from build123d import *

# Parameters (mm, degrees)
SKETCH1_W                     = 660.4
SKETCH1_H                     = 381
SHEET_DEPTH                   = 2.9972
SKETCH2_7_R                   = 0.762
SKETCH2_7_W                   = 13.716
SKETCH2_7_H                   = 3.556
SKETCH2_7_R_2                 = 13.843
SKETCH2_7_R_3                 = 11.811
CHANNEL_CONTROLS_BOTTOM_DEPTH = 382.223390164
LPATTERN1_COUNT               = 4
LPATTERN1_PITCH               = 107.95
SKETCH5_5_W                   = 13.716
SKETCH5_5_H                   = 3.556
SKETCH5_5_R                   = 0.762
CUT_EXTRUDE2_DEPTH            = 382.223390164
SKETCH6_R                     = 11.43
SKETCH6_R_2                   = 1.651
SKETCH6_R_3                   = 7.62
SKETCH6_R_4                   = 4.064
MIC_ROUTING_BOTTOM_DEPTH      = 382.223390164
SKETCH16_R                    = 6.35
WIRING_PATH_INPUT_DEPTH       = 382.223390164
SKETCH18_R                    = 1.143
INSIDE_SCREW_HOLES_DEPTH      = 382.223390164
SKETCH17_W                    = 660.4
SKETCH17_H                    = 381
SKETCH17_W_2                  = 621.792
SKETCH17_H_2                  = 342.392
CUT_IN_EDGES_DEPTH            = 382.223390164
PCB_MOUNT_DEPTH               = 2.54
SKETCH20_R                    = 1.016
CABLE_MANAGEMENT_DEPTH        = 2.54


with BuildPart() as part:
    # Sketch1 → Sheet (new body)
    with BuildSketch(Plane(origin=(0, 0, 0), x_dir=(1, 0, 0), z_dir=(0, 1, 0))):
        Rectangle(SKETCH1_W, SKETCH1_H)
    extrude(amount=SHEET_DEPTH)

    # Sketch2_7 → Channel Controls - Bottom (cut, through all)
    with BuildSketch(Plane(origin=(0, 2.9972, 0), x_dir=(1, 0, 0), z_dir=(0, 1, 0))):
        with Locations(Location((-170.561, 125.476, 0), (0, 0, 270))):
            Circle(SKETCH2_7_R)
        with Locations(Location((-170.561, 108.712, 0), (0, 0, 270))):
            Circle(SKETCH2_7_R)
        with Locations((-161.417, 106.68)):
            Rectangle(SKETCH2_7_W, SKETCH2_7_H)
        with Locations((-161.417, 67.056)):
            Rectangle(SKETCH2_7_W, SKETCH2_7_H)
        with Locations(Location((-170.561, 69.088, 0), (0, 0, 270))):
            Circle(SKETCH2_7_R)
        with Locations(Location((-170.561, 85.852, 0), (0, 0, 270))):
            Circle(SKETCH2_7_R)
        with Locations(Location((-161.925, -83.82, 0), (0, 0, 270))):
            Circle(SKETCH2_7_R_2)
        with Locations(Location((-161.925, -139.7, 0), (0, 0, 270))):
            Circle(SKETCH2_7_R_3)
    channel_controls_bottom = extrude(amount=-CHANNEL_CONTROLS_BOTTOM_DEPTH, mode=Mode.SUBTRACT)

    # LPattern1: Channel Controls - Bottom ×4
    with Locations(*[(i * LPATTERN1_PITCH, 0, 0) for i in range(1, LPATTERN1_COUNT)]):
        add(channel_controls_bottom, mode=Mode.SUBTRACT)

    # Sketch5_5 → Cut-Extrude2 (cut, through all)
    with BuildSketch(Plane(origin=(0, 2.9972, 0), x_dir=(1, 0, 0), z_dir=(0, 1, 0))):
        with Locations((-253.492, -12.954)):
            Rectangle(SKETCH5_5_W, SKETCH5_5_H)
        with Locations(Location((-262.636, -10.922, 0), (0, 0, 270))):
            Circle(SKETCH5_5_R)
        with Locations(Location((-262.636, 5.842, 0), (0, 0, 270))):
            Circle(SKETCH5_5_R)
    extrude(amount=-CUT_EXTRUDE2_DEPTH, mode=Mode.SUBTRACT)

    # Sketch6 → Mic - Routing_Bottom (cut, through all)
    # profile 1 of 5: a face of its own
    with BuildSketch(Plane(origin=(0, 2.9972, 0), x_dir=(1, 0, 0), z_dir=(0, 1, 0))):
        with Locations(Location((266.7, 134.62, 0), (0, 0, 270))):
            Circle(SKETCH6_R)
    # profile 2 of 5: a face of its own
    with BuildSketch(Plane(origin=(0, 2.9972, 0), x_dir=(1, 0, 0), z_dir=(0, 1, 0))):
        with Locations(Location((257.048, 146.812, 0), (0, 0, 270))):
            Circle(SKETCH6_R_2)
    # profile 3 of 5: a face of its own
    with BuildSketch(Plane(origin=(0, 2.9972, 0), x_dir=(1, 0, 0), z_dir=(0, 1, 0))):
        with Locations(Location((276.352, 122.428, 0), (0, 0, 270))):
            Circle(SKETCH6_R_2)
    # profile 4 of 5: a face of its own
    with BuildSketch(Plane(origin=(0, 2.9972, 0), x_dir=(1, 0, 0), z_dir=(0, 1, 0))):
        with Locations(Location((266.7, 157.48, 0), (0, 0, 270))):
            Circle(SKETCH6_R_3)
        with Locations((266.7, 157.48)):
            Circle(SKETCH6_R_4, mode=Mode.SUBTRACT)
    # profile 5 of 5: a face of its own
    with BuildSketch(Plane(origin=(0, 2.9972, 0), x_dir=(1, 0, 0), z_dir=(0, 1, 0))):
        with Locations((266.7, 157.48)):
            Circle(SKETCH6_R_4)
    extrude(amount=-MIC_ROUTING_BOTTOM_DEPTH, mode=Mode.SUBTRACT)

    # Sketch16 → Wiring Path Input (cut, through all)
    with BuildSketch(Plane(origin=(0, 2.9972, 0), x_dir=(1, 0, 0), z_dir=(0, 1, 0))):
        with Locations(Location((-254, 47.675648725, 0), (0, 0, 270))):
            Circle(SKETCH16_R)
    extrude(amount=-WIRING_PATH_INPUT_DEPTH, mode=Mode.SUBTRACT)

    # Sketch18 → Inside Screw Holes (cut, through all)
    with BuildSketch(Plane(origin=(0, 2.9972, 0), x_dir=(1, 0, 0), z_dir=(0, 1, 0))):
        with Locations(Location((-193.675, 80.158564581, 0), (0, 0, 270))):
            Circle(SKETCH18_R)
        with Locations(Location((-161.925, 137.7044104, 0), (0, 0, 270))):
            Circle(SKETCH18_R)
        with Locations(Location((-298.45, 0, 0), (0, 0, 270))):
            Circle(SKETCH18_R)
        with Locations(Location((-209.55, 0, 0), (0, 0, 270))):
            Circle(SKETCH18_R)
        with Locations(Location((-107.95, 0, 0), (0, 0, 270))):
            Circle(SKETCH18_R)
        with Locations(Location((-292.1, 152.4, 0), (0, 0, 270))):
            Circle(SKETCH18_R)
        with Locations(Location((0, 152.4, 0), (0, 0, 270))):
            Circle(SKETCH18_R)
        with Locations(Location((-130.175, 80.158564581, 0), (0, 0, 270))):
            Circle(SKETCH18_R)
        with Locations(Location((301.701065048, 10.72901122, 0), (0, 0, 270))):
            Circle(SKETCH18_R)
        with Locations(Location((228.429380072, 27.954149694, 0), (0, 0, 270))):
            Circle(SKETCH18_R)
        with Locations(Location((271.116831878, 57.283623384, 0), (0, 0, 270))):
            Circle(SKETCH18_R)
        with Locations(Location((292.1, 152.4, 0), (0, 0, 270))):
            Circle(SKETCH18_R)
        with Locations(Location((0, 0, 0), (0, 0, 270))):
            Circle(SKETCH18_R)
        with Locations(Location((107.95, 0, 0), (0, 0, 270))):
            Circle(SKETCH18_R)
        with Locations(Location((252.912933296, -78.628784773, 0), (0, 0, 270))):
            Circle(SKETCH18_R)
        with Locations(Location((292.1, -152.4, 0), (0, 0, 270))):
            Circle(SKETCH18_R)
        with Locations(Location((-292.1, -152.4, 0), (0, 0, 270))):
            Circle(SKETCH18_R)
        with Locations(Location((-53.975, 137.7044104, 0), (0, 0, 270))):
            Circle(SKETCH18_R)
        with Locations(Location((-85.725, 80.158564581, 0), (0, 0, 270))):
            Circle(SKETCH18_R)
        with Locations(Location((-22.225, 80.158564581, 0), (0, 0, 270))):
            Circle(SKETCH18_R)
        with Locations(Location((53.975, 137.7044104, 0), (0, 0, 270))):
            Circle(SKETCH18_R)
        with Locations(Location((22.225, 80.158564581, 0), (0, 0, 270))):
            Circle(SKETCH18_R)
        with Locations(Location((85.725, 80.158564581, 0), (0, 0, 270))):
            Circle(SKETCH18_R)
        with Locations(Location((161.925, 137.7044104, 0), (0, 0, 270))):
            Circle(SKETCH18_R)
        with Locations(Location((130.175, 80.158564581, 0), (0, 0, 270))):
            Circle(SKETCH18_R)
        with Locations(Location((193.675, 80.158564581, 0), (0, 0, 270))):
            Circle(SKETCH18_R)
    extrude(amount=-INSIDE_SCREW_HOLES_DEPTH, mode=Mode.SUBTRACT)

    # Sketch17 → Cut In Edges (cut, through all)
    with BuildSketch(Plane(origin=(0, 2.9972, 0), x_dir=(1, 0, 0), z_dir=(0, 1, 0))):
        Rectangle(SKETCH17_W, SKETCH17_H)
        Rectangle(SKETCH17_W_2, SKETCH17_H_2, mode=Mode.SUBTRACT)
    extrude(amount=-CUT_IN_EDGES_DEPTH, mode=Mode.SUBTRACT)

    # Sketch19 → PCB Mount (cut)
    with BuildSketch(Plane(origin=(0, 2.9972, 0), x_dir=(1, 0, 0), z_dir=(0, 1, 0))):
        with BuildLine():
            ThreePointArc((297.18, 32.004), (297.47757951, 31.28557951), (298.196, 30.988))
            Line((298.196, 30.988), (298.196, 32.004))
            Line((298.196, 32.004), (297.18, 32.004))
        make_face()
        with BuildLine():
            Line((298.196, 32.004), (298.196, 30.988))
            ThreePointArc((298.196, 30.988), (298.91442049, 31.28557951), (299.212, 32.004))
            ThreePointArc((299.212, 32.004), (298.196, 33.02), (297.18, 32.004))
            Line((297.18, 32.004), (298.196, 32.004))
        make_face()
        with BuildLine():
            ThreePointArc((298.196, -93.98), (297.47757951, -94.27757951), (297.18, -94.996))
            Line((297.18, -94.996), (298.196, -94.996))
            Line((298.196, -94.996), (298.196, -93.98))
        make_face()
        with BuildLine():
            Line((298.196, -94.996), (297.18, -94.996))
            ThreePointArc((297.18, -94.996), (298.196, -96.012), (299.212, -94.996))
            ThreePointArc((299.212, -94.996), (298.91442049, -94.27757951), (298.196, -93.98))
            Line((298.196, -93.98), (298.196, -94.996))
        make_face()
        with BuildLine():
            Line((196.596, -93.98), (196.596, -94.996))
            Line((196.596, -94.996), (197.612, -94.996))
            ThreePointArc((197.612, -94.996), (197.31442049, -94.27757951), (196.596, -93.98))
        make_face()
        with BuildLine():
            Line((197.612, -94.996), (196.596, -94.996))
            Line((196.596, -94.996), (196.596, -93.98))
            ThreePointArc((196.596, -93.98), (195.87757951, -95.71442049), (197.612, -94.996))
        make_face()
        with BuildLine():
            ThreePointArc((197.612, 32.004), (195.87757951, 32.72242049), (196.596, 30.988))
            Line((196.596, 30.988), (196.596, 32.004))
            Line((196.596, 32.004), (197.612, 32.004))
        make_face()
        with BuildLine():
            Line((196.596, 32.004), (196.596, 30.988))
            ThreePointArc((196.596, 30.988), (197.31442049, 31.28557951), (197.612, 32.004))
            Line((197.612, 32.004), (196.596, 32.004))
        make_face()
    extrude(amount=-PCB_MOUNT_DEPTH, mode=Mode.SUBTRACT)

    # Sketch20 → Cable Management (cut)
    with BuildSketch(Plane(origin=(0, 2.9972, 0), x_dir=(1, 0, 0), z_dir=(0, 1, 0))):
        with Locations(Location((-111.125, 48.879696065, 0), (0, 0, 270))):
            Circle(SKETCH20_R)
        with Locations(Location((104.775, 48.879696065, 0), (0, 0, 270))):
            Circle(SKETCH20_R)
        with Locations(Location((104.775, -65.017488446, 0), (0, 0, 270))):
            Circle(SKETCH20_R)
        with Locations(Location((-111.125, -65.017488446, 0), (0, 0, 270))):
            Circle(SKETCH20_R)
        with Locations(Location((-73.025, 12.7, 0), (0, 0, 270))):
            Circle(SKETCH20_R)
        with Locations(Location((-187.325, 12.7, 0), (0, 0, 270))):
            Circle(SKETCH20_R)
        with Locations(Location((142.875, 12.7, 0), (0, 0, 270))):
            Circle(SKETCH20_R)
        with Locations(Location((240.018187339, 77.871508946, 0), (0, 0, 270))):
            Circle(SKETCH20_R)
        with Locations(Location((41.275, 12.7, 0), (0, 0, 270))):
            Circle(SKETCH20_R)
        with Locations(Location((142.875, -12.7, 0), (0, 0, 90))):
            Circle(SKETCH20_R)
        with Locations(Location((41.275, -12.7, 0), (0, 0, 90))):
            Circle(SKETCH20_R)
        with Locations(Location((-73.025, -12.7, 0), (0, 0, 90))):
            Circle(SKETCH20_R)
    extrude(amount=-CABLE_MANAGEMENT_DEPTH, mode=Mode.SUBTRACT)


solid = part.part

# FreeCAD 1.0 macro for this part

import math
import FreeCAD as App
import Part
import Sketcher
from FreeCAD import Vector
Q = App.Units.Quantity

doc = App.newDocument("Part")
body = doc.addObject("PartDesign::Body", "Body")

# Sketch on XZ plane
sketch1 = body.newObject("Sketcher::SketchObject", "Sketch")
sketch1.AttachmentSupport = (doc.getObject("XZ_Plane"), [""])
sketch1.MapMode = "FlatFace"
sketch1.addGeometry(Part.LineSegment(Vector(-330.2, -190.5, 0), Vector(-330.2, 190.5, 0)), False)
sketch1.addGeometry(Part.LineSegment(Vector(-330.2, 190.5, 0), Vector(330.2, 190.5, 0)), False)
sketch1.addGeometry(Part.LineSegment(Vector(330.2, 190.5, 0), Vector(330.2, -190.5, 0)), False)
sketch1.addGeometry(Part.LineSegment(Vector(330.2, -190.5, 0), Vector(-330.2, -190.5, 0)), False)
sketch1.addConstraint(Sketcher.Constraint("Coincident", 0, 2, 1, 1))
sketch1.addConstraint(Sketcher.Constraint("Coincident", 1, 2, 2, 1))
sketch1.addConstraint(Sketcher.Constraint("Coincident", 2, 2, 3, 1))
sketch1.addConstraint(Sketcher.Constraint("Coincident", 3, 2, 0, 1))
sketch1.addConstraint(Sketcher.Constraint("Vertical", 0))
sketch1.addConstraint(Sketcher.Constraint("Horizontal", 1))
sketch1.addConstraint(Sketcher.Constraint("Vertical", 2))
sketch1.addConstraint(Sketcher.Constraint("Horizontal", 3))
sketch1.addConstraint(Sketcher.Constraint("Symmetric", 0, 2, 2, 2, -1, 1))
sketch1.addConstraint(Sketcher.Constraint("DistanceX", 1, 1, 1, 2, Q("26 in")))
sketch1.addConstraint(Sketcher.Constraint("DistanceY", 0, 1, 0, 2, Q("15 in")))
pad1 = body.newObject("PartDesign::Pad", "Pad")
pad1.Profile = sketch1
pad1.Length = Q("0.118 in")
pad1.Reversed = True

# Sketch on XZ plane
sketch2 = body.newObject("Sketcher::SketchObject", "Sketch001")
sketch2.AttachmentSupport = (doc.getObject("XZ_Plane"), [""])
sketch2.MapMode = "FlatFace"
sketch2.AttachmentOffset = App.Placement(Vector(0, 0, -0.118 * 25.4), App.Rotation())
sketch2.addGeometry(Part.Circle(Vector(-170.561, -125.476, 0), Vector(0, 0, 1), 0.762), False)
sketch2.addGeometry(Part.Circle(Vector(-170.561, -108.712, 0), Vector(0, 0, 1), 0.762), False)
sketch2.addGeometry(Part.LineSegment(Vector(-168.275, -108.458, 0), Vector(-168.275, -104.902, 0)), False)
sketch2.addGeometry(Part.LineSegment(Vector(-168.275, -104.902, 0), Vector(-154.559, -104.902, 0)), False)
sketch2.addGeometry(Part.LineSegment(Vector(-154.559, -104.902, 0), Vector(-154.559, -108.458, 0)), False)
sketch2.addGeometry(Part.LineSegment(Vector(-154.559, -108.458, 0), Vector(-168.275, -108.458, 0)), False)
sketch2.addGeometry(Part.LineSegment(Vector(-168.275, -68.834, 0), Vector(-168.275, -65.278, 0)), False)
sketch2.addGeometry(Part.LineSegment(Vector(-168.275, -65.278, 0), Vector(-154.559, -65.278, 0)), False)
sketch2.addGeometry(Part.LineSegment(Vector(-154.559, -65.278, 0), Vector(-154.559, -68.834, 0)), False)
sketch2.addGeometry(Part.LineSegment(Vector(-154.559, -68.834, 0), Vector(-168.275, -68.834, 0)), False)
sketch2.addGeometry(Part.Circle(Vector(-170.561, -69.088, 0), Vector(0, 0, 1), 0.762), False)
sketch2.addGeometry(Part.Circle(Vector(-170.561, -85.852, 0), Vector(0, 0, 1), 0.762), False)
sketch2.addGeometry(Part.Circle(Vector(-161.925, 83.82, 0), Vector(0, 0, 1), 13.843), False)
sketch2.addGeometry(Part.Circle(Vector(-161.925, 139.7, 0), Vector(0, 0, 1), 11.811), False)
sketch2.addConstraint(Sketcher.Constraint("Coincident", 2, 2, 3, 1))
sketch2.addConstraint(Sketcher.Constraint("Coincident", 3, 2, 4, 1))
sketch2.addConstraint(Sketcher.Constraint("Coincident", 4, 2, 5, 1))
sketch2.addConstraint(Sketcher.Constraint("Coincident", 5, 2, 2, 1))
sketch2.addConstraint(Sketcher.Constraint("Coincident", 6, 2, 7, 1))
sketch2.addConstraint(Sketcher.Constraint("Coincident", 7, 2, 8, 1))
sketch2.addConstraint(Sketcher.Constraint("Coincident", 8, 2, 9, 1))
sketch2.addConstraint(Sketcher.Constraint("Coincident", 9, 2, 6, 1))
sketch2.addConstraint(Sketcher.Constraint("Vertical", 2))
sketch2.addConstraint(Sketcher.Constraint("Horizontal", 3))
sketch2.addConstraint(Sketcher.Constraint("Vertical", 4))
sketch2.addConstraint(Sketcher.Constraint("Horizontal", 5))
sketch2.addConstraint(Sketcher.Constraint("Vertical", 6))
sketch2.addConstraint(Sketcher.Constraint("Horizontal", 7))
sketch2.addConstraint(Sketcher.Constraint("Vertical", 8))
sketch2.addConstraint(Sketcher.Constraint("Horizontal", 9))
sketch2.addConstraint(Sketcher.Constraint("Equal", 0, 1))
sketch2.addConstraint(Sketcher.Constraint("Equal", 1, 10))
sketch2.addConstraint(Sketcher.Constraint("Equal", 10, 11))
sketch2.addConstraint(Sketcher.Constraint("Vertical", 0, 3, 1, 3))
sketch2.addConstraint(Sketcher.Constraint("Vertical", 1, 3, 10, 3))
sketch2.addConstraint(Sketcher.Constraint("Vertical", 10, 3, 11, 3))
sketch2.addConstraint(Sketcher.Constraint("Vertical", 12, 3, 13, 3))
sketch2.addConstraint(Sketcher.Constraint("Vertical", 5, 2, 6, 2))
sketch2.addConstraint(Sketcher.Constraint("Vertical", 4, 2, 7, 2))
sketch2.addConstraint(Sketcher.Constraint("Equal", 4, 6))
sketch2.addConstraint(Sketcher.Constraint("Diameter", 0, Q("0.06 in")))
sketch2.addConstraint(Sketcher.Constraint("Diameter", 12, Q("1.09 in")))
sketch2.addConstraint(Sketcher.Constraint("Diameter", 13, Q("0.93 in")))
sketch2.addConstraint(Sketcher.Constraint("DistanceX", 3, 1, 3, 2, Q("0.54 in")))
sketch2.addConstraint(Sketcher.Constraint("DistanceY", 2, 1, 2, 2, Q("0.14 in")))
sketch2.addConstraint(Sketcher.Constraint("DistanceY", -1, 1, 12, 3, Q("3.3 in")))
sketch2.addConstraint(Sketcher.Constraint("DistanceY", -1, 1, 13, 3, Q("5.5 in")))
sketch2.addConstraint(Sketcher.Constraint("DistanceY", 1, 3, 11, 3, Q("0.9 in")))
sketch2.addConstraint(Sketcher.Constraint("DistanceY", 5, 2, 6, 2, Q("1.7 in")))
sketch2.addConstraint(Sketcher.Constraint("DistanceY", 0, 3, -1, 1, Q("4.94 in")))
sketch2.addConstraint(Sketcher.Constraint("DistanceY", 1, 3, -1, 1, Q("4.28 in")))
sketch2.addConstraint(Sketcher.Constraint("DistanceY", 10, 3, -1, 1, Q("2.72 in")))
sketch2.addConstraint(Sketcher.Constraint("DistanceY", 2, 2, -1, 1, Q("4.13 in")))
sketch2.addConstraint(Sketcher.Constraint("DistanceX", 10, 3, 12, 3, Q("0.34 in")))
sketch2.addConstraint(Sketcher.Constraint("DistanceX", 1, 3, 2, 2, Q("0.09 in")))
sketch2.addConstraint(Sketcher.Constraint("DistanceX", 0, 3, -1, 1, Q("6.715 in")))
pocket1 = body.newObject("PartDesign::Pocket", "Pocket")
pocket1.Profile = sketch2
pocket1.Type = "ThroughAll"
pocket1.Reversed = True
doc.recompute()

linearpattern = body.newObject("PartDesign::LinearPattern", "LinearPattern")
linearpattern.Originals = [pocket1]
linearpattern.Direction = (doc.getObject("X_Axis"), [""])
linearpattern.Mode = "offset"
linearpattern.Offset = Q("4.25 in")
linearpattern.Occurrences = 4
body.Tip = linearpattern

# Sketch on XZ plane
sketch3 = body.newObject("Sketcher::SketchObject", "Sketch002")
sketch3.AttachmentSupport = (doc.getObject("XZ_Plane"), [""])
sketch3.MapMode = "FlatFace"
sketch3.AttachmentOffset = App.Placement(Vector(0, 0, -0.118 * 25.4), App.Rotation())
sketch3.addGeometry(Part.LineSegment(Vector(-260.35, 11.176, 0), Vector(-260.35, 14.732, 0)), False)
sketch3.addGeometry(Part.LineSegment(Vector(-260.35, 14.732, 0), Vector(-246.634, 14.732, 0)), False)
sketch3.addGeometry(Part.LineSegment(Vector(-246.634, 14.732, 0), Vector(-246.634, 11.176, 0)), False)
sketch3.addGeometry(Part.LineSegment(Vector(-246.634, 11.176, 0), Vector(-260.35, 11.176, 0)), False)
sketch3.addGeometry(Part.Circle(Vector(-262.636, 10.922, 0), Vector(0, 0, 1), 0.762), False)
sketch3.addGeometry(Part.Circle(Vector(-262.636, -5.842, 0), Vector(0, 0, 1), 0.762), False)
sketch3.addConstraint(Sketcher.Constraint("Coincident", 0, 2, 1, 1))
sketch3.addConstraint(Sketcher.Constraint("Coincident", 1, 2, 2, 1))
sketch3.addConstraint(Sketcher.Constraint("Coincident", 2, 2, 3, 1))
sketch3.addConstraint(Sketcher.Constraint("Coincident", 3, 2, 0, 1))
sketch3.addConstraint(Sketcher.Constraint("Vertical", 0))
sketch3.addConstraint(Sketcher.Constraint("Horizontal", 1))
sketch3.addConstraint(Sketcher.Constraint("Vertical", 2))
sketch3.addConstraint(Sketcher.Constraint("Horizontal", 3))
sketch3.addConstraint(Sketcher.Constraint("Equal", 4, 5))
sketch3.addConstraint(Sketcher.Constraint("Vertical", 4, 3, 5, 3))
sketch3.addConstraint(Sketcher.Constraint("Diameter", 4, Q("0.06 in")))
sketch3.addConstraint(Sketcher.Constraint("DistanceX", 1, 1, 1, 2, Q("0.54 in")))
sketch3.addConstraint(Sketcher.Constraint("DistanceY", 0, 1, 0, 2, Q("0.14 in")))
sketch3.addConstraint(Sketcher.Constraint("DistanceX", 4, 3, -1, 1, Q("10.34 in")))
sketch3.addConstraint(Sketcher.Constraint("DistanceY", -1, 1, 4, 3, Q("0.43 in")))
sketch3.addConstraint(Sketcher.Constraint("DistanceY", 5, 3, -1, 1, Q("0.23 in")))
sketch3.addConstraint(Sketcher.Constraint("DistanceX", 0, 2, -1, 1, Q("10.25 in")))
sketch3.addConstraint(Sketcher.Constraint("DistanceY", -1, 1, 0, 2, Q("0.58 in")))
pocket2 = body.newObject("PartDesign::Pocket", "Pocket001")
pocket2.Profile = sketch3
pocket2.Type = "ThroughAll"
pocket2.Reversed = True

# Sketch on XZ plane
sketch4 = body.newObject("Sketcher::SketchObject", "Sketch003")
sketch4.AttachmentSupport = (doc.getObject("XZ_Plane"), [""])
sketch4.MapMode = "FlatFace"
sketch4.AttachmentOffset = App.Placement(Vector(0, 0, -0.118 * 25.4), App.Rotation())
sketch4.addGeometry(Part.Circle(Vector(266.7, -134.62, 0), Vector(0, 0, 1), 11.43), False)
sketch4.addGeometry(Part.Circle(Vector(257.048, -146.812, 0), Vector(0, 0, 1), 1.651), False)
sketch4.addGeometry(Part.Circle(Vector(276.352, -122.428, 0), Vector(0, 0, 1), 1.651), False)
sketch4.addGeometry(Part.Circle(Vector(266.7, -157.48, 0), Vector(0, 0, 1), 7.62), False)
sketch4.addConstraint(Sketcher.Constraint("Equal", 1, 2))
sketch4.addConstraint(Sketcher.Constraint("Vertical", 0, 3, 3, 3))
sketch4.addConstraint(Sketcher.Constraint("Diameter", 0, Q("0.9 in")))
sketch4.addConstraint(Sketcher.Constraint("Diameter", 3, Q("0.6 in")))
sketch4.addConstraint(Sketcher.Constraint("Diameter", 1, Q("0.13 in")))
sketch4.addConstraint(Sketcher.Constraint("DistanceX", -1, 1, 0, 3, Q("10.5 in")))
sketch4.addConstraint(Sketcher.Constraint("DistanceY", 0, 3, -1, 1, Q("5.3 in")))
sketch4.addConstraint(Sketcher.Constraint("DistanceY", 3, 3, -1, 1, Q("6.2 in")))
sketch4.addConstraint(Sketcher.Constraint("DistanceX", -1, 1, 1, 3, Q("10.12 in")))
sketch4.addConstraint(Sketcher.Constraint("DistanceY", 1, 3, -1, 1, Q("5.78 in")))
sketch4.addConstraint(Sketcher.Constraint("DistanceX", -1, 1, 2, 3, Q("10.88 in")))
sketch4.addConstraint(Sketcher.Constraint("DistanceY", 2, 3, -1, 1, Q("4.82 in")))
pocket3 = body.newObject("PartDesign::Pocket", "Pocket002")
pocket3.Profile = sketch4
pocket3.Length = 382.22339
pocket3.Reversed = True

# Sketch on XZ plane
sketch5 = body.newObject("Sketcher::SketchObject", "Sketch004")
sketch5.AttachmentSupport = (doc.getObject("XZ_Plane"), [""])
sketch5.MapMode = "FlatFace"
sketch5.AttachmentOffset = App.Placement(Vector(0, 0, -0.118 * 25.4), App.Rotation())
sketch5.addGeometry(Part.Circle(Vector(-254, -47.675649, 0), Vector(0, 0, 1), 6.35), False)
sketch5.addConstraint(Sketcher.Constraint("Diameter", 0, Q("0.5 in")))
sketch5.addConstraint(Sketcher.Constraint("DistanceX", 0, 3, -1, 1, Q("10 in")))
sketch5.addConstraint(Sketcher.Constraint("DistanceY", 0, 3, -1, 1, Q("47.675649 mm")))
pocket4 = body.newObject("PartDesign::Pocket", "Pocket003")
pocket4.Profile = sketch5
pocket4.Type = "ThroughAll"
pocket4.Reversed = True

# Sketch on XZ plane
sketch6 = body.newObject("Sketcher::SketchObject", "Sketch005")
sketch6.AttachmentSupport = (doc.getObject("XZ_Plane"), [""])
sketch6.MapMode = "FlatFace"
sketch6.AttachmentOffset = App.Placement(Vector(0, 0, -0.118 * 25.4), App.Rotation())
sketch6.addGeometry(Part.Circle(Vector(-193.675, -80.158565, 0), Vector(0, 0, 1), 1.143), False)
sketch6.addGeometry(Part.Circle(Vector(-161.925, -137.70441, 0), Vector(0, 0, 1), 1.143), False)
sketch6.addGeometry(Part.Circle(Vector(-298.45, 0, 0), Vector(0, 0, 1), 1.143), False)
sketch6.addGeometry(Part.Circle(Vector(-209.55, 0, 0), Vector(0, 0, 1), 1.143), False)
sketch6.addGeometry(Part.Circle(Vector(-107.95, 0, 0), Vector(0, 0, 1), 1.143), False)
sketch6.addGeometry(Part.Circle(Vector(-292.1, -152.4, 0), Vector(0, 0, 1), 1.143), False)
sketch6.addGeometry(Part.Circle(Vector(0, -152.4, 0), Vector(0, 0, 1), 1.143), False)
sketch6.addGeometry(Part.Circle(Vector(-130.175, -80.158565, 0), Vector(0, 0, 1), 1.143), False)
sketch6.addGeometry(Part.Circle(Vector(301.701065, -10.729011, 0), Vector(0, 0, 1), 1.143), False)
sketch6.addGeometry(Part.Circle(Vector(228.42938, -27.95415, 0), Vector(0, 0, 1), 1.143), False)
sketch6.addGeometry(Part.Circle(Vector(271.116832, -57.283623, 0), Vector(0, 0, 1), 1.143), False)
sketch6.addGeometry(Part.Circle(Vector(292.1, -152.4, 0), Vector(0, 0, 1), 1.143), False)
sketch6.addGeometry(Part.Circle(Vector(0, 0, 0), Vector(0, 0, 1), 1.143), False)
sketch6.addGeometry(Part.Circle(Vector(107.95, 0, 0), Vector(0, 0, 1), 1.143), False)
sketch6.addGeometry(Part.Circle(Vector(252.912933, 78.628785, 0), Vector(0, 0, 1), 1.143), False)
sketch6.addGeometry(Part.Circle(Vector(292.1, 152.4, 0), Vector(0, 0, 1), 1.143), False)
sketch6.addGeometry(Part.Circle(Vector(-292.1, 152.4, 0), Vector(0, 0, 1), 1.143), False)
sketch6.addGeometry(Part.Circle(Vector(-53.975, -137.70441, 0), Vector(0, 0, 1), 1.143), False)
sketch6.addGeometry(Part.Circle(Vector(-85.725, -80.158565, 0), Vector(0, 0, 1), 1.143), False)
sketch6.addGeometry(Part.Circle(Vector(-22.225, -80.158565, 0), Vector(0, 0, 1), 1.143), False)
sketch6.addGeometry(Part.Circle(Vector(53.975, -137.70441, 0), Vector(0, 0, 1), 1.143), False)
sketch6.addGeometry(Part.Circle(Vector(22.225, -80.158565, 0), Vector(0, 0, 1), 1.143), False)
sketch6.addGeometry(Part.Circle(Vector(85.725, -80.158565, 0), Vector(0, 0, 1), 1.143), False)
sketch6.addGeometry(Part.Circle(Vector(161.925, -137.70441, 0), Vector(0, 0, 1), 1.143), False)
sketch6.addGeometry(Part.Circle(Vector(130.175, -80.158565, 0), Vector(0, 0, 1), 1.143), False)
sketch6.addGeometry(Part.Circle(Vector(193.675, -80.158565, 0), Vector(0, 0, 1), 1.143), False)
sketch6.addConstraint(Sketcher.Constraint("Coincident", 12, 3, -1, 1))
sketch6.addConstraint(Sketcher.Constraint("Equal", 0, 1))
sketch6.addConstraint(Sketcher.Constraint("Equal", 1, 2))
sketch6.addConstraint(Sketcher.Constraint("Equal", 2, 3))
sketch6.addConstraint(Sketcher.Constraint("Equal", 3, 4))
sketch6.addConstraint(Sketcher.Constraint("Equal", 4, 5))
sketch6.addConstraint(Sketcher.Constraint("Equal", 5, 6))
sketch6.addConstraint(Sketcher.Constraint("Equal", 6, 7))
sketch6.addConstraint(Sketcher.Constraint("Equal", 7, 8))
sketch6.addConstraint(Sketcher.Constraint("Equal", 8, 9))
sketch6.addConstraint(Sketcher.Constraint("Equal", 9, 10))
sketch6.addConstraint(Sketcher.Constraint("Equal", 10, 11))
sketch6.addConstraint(Sketcher.Constraint("Equal", 11, 12))
sketch6.addConstraint(Sketcher.Constraint("Equal", 12, 13))
sketch6.addConstraint(Sketcher.Constraint("Equal", 13, 14))
sketch6.addConstraint(Sketcher.Constraint("Equal", 14, 15))
sketch6.addConstraint(Sketcher.Constraint("Equal", 15, 16))
sketch6.addConstraint(Sketcher.Constraint("Equal", 16, 17))
sketch6.addConstraint(Sketcher.Constraint("Equal", 17, 18))
sketch6.addConstraint(Sketcher.Constraint("Equal", 18, 19))
sketch6.addConstraint(Sketcher.Constraint("Equal", 19, 20))
sketch6.addConstraint(Sketcher.Constraint("Equal", 20, 21))
sketch6.addConstraint(Sketcher.Constraint("Equal", 21, 22))
sketch6.addConstraint(Sketcher.Constraint("Equal", 22, 23))
sketch6.addConstraint(Sketcher.Constraint("Equal", 23, 24))
sketch6.addConstraint(Sketcher.Constraint("Equal", 24, 25))
sketch6.addConstraint(Sketcher.Constraint("Symmetric", 4, 3, 13, 3, -1, 1))
sketch6.addConstraint(Sketcher.Constraint("Symmetric", 5, 3, 15, 3, -1, 1))
sketch6.addConstraint(Sketcher.Constraint("Symmetric", 11, 3, 16, 3, -1, 1))
sketch6.addConstraint(Sketcher.Constraint("Symmetric", 5, 3, 11, 3, -2))
sketch6.addConstraint(Sketcher.Constraint("Symmetric", 17, 3, 20, 3, -2))
sketch6.addConstraint(Sketcher.Constraint("Symmetric", 19, 3, 21, 3, -2))
sketch6.addConstraint(Sketcher.Constraint("Symmetric", 18, 3, 22, 3, -2))
sketch6.addConstraint(Sketcher.Constraint("Symmetric", 1, 3, 23, 3, -2))
sketch6.addConstraint(Sketcher.Constraint("Symmetric", 7, 3, 24, 3, -2))
sketch6.addConstraint(Sketcher.Constraint("Symmetric", 0, 3, 25, 3, -2))
sketch6.addConstraint(Sketcher.Constraint("PointOnObject", 2, 3, -1))
sketch6.addConstraint(Sketcher.Constraint("PointOnObject", 3, 3, -1))
sketch6.addConstraint(Sketcher.Constraint("PointOnObject", 4, 3, -1))
sketch6.addConstraint(Sketcher.Constraint("PointOnObject", 6, 3, -2))
sketch6.addConstraint(Sketcher.Constraint("Horizontal", 5, 3, 6, 3))
sketch6.addConstraint(Sketcher.Constraint("Horizontal", 0, 3, 7, 3))
sketch6.addConstraint(Sketcher.Constraint("Horizontal", 1, 3, 17, 3))
sketch6.addConstraint(Sketcher.Constraint("Horizontal", 7, 3, 18, 3))
sketch6.addConstraint(Sketcher.Constraint("Horizontal", 18, 3, 19, 3))
sketch6.addConstraint(Sketcher.Constraint("Diameter", 0, Q("0.09 in")))
sketch6.addConstraint(Sketcher.Constraint("DistanceY", 5, 3, -1, 1, Q("6 in")))
sketch6.addConstraint(Sketcher.Constraint("DistanceX", 3, 3, 4, 3, Q("4 in")))
sketch6.addConstraint(Sketcher.Constraint("DistanceX", 7, 3, 17, 3, Q("3 in")))
sketch6.addConstraint(Sketcher.Constraint("DistanceX", 1, 3, 18, 3, Q("3 in")))
sketch6.addConstraint(Sketcher.Constraint("DistanceX", 19, 3, 20, 3, Q("3 in")))
sketch6.addConstraint(Sketcher.Constraint("DistanceX", 5, 3, -1, 1, Q("11.5 in")))
sketch6.addConstraint(Sketcher.Constraint("DistanceX", 2, 3, 3, 3, Q("3.5 in")))
sketch6.addConstraint(Sketcher.Constraint("DistanceX", 0, 3, 7, 3, Q("2.5 in")))
sketch6.addConstraint(Sketcher.Constraint("DistanceX", 18, 3, 19, 3, Q("2.5 in")))
sketch6.addConstraint(Sketcher.Constraint("DistanceX", 2, 3, -1, 1, Q("11.75 in")))
sketch6.addConstraint(Sketcher.Constraint("DistanceX", 0, 3, 1, 3, Q("1.25 in")))
sketch6.addConstraint(Sketcher.Constraint("DistanceY", 1, 3, 8, 3, Q("126.975399 mm")))
sketch6.addConstraint(Sketcher.Constraint("DistanceX", 14, 3, 10, 3, Q("18.203899 mm")))
sketch6.addConstraint(Sketcher.Constraint("DistanceY", 1, 3, -1, 1, Q("137.70441 mm")))
sketch6.addConstraint(Sketcher.Constraint("DistanceX", -1, 1, 9, 3, Q("228.42938 mm")))
sketch6.addConstraint(Sketcher.Constraint("DistanceY", 9, 3, -1, 1, Q("27.95415 mm")))
sketch6.addConstraint(Sketcher.Constraint("DistanceX", -1, 1, 10, 3, Q("271.116832 mm")))
sketch6.addConstraint(Sketcher.Constraint("DistanceY", 7, 3, 10, 3, Q("22.874941 mm")))
sketch6.addConstraint(Sketcher.Constraint("DistanceX", 14, 3, 8, 3, Q("48.788132 mm")))
sketch6.addConstraint(Sketcher.Constraint("DistanceY", 10, 3, 14, 3, Q("135.912408 mm")))
sketch6.addConstraint(Sketcher.Constraint("DistanceY", 0, 3, -1, 1, Q("80.158565 mm")))
pocket5 = body.newObject("PartDesign::Pocket", "Pocket004")
pocket5.Profile = sketch6
pocket5.Type = "ThroughAll"
pocket5.Reversed = True

# Sketch on XZ plane
sketch7 = body.newObject("Sketcher::SketchObject", "Sketch006")
sketch7.AttachmentSupport = (doc.getObject("XZ_Plane"), [""])
sketch7.MapMode = "FlatFace"
sketch7.AttachmentOffset = App.Placement(Vector(0, 0, -0.118 * 25.4), App.Rotation())
sketch7.addGeometry(Part.LineSegment(Vector(-330.2, -190.5, 0), Vector(-330.2, 190.5, 0)), False)
sketch7.addGeometry(Part.LineSegment(Vector(-330.2, 190.5, 0), Vector(330.2, 190.5, 0)), False)
sketch7.addGeometry(Part.LineSegment(Vector(330.2, 190.5, 0), Vector(330.2, -190.5, 0)), False)
sketch7.addGeometry(Part.LineSegment(Vector(330.2, -190.5, 0), Vector(-330.2, -190.5, 0)), False)
sketch7.addGeometry(Part.LineSegment(Vector(310.896, 171.196, 0), Vector(-310.896, 171.196, 0)), False)
sketch7.addGeometry(Part.LineSegment(Vector(-310.896, 171.196, 0), Vector(-310.896, -171.196, 0)), False)
sketch7.addGeometry(Part.LineSegment(Vector(-310.896, -171.196, 0), Vector(310.896, -171.196, 0)), False)
sketch7.addGeometry(Part.LineSegment(Vector(310.896, -171.196, 0), Vector(310.896, 171.196, 0)), False)
sketch7.addConstraint(Sketcher.Constraint("Coincident", 0, 2, 1, 1))
sketch7.addConstraint(Sketcher.Constraint("Coincident", 1, 2, 2, 1))
sketch7.addConstraint(Sketcher.Constraint("Coincident", 2, 2, 3, 1))
sketch7.addConstraint(Sketcher.Constraint("Coincident", 3, 2, 0, 1))
sketch7.addConstraint(Sketcher.Constraint("Coincident", 4, 2, 5, 1))
sketch7.addConstraint(Sketcher.Constraint("Coincident", 5, 2, 6, 1))
sketch7.addConstraint(Sketcher.Constraint("Coincident", 6, 2, 7, 1))
sketch7.addConstraint(Sketcher.Constraint("Coincident", 7, 2, 4, 1))
sketch7.addConstraint(Sketcher.Constraint("Vertical", 0))
sketch7.addConstraint(Sketcher.Constraint("Horizontal", 1))
sketch7.addConstraint(Sketcher.Constraint("Vertical", 2))
sketch7.addConstraint(Sketcher.Constraint("Horizontal", 3))
sketch7.addConstraint(Sketcher.Constraint("Horizontal", 4))
sketch7.addConstraint(Sketcher.Constraint("Vertical", 5))
sketch7.addConstraint(Sketcher.Constraint("Horizontal", 6))
sketch7.addConstraint(Sketcher.Constraint("Vertical", 7))
sketch7.addConstraint(Sketcher.Constraint("Symmetric", 0, 2, 2, 2, -1, 1))
sketch7.addConstraint(Sketcher.Constraint("Symmetric", 4, 2, 6, 2, -1, 1))
sketch7.addConstraint(Sketcher.Constraint("DistanceX", 1, 1, 1, 2, Q("26 in")))
sketch7.addConstraint(Sketcher.Constraint("DistanceY", 0, 1, 0, 2, Q("15 in")))
sketch7.addConstraint(Sketcher.Constraint("DistanceX", 4, 2, 4, 1, Q("24.48 in")))
sketch7.addConstraint(Sketcher.Constraint("DistanceY", 5, 2, 5, 1, Q("13.48 in")))
pocket6 = body.newObject("PartDesign::Pocket", "Pocket005")
pocket6.Profile = sketch7
pocket6.Type = "ThroughAll"
pocket6.Reversed = True

# Sketch on XZ plane
sketch8 = body.newObject("Sketcher::SketchObject", "Sketch007")
sketch8.AttachmentSupport = (doc.getObject("XZ_Plane"), [""])
sketch8.MapMode = "FlatFace"
sketch8.AttachmentOffset = App.Placement(Vector(0, 0, -0.118 * 25.4), App.Rotation())
sketch8.addGeometry(Part.ArcOfCircle(Part.Circle(Vector(298.196, -32.004, 0), Vector(0, 0, 1), 1.016), math.radians(90), math.radians(180)), False)
sketch8.addGeometry(Part.ArcOfCircle(Part.Circle(Vector(298.196, -32.004, 0), Vector(0, 0, 1), 1.016), math.radians(0), math.radians(90)), False)
sketch8.addGeometry(Part.ArcOfCircle(Part.Circle(Vector(298.196, -32.004, 0), Vector(0, 0, 1), 1.016), math.radians(180), math.radians(360)), False)
sketch8.addGeometry(Part.ArcOfCircle(Part.Circle(Vector(298.196, 94.996, 0), Vector(0, 0, 1), 1.016), math.radians(180), math.radians(270)), False)
sketch8.addGeometry(Part.ArcOfCircle(Part.Circle(Vector(298.196, 94.996, 0), Vector(0, 0, 1), 1.016), math.radians(0), math.radians(180)), False)
sketch8.addGeometry(Part.ArcOfCircle(Part.Circle(Vector(298.196, 94.996, 0), Vector(0, 0, 1), 1.016), math.radians(-90), math.radians(0)), False)
sketch8.addGeometry(Part.ArcOfCircle(Part.Circle(Vector(196.596, 94.996, 0), Vector(0, 0, 1), 1.016), math.radians(-90), math.radians(0)), False)
sketch8.addGeometry(Part.ArcOfCircle(Part.Circle(Vector(196.596, 94.996, 0), Vector(0, 0, 1), 1.016), math.radians(0), math.radians(270)), False)
sketch8.addGeometry(Part.ArcOfCircle(Part.Circle(Vector(196.596, -32.004, 0), Vector(0, 0, 1), 1.016), math.radians(90), math.radians(360)), False)
sketch8.addGeometry(Part.ArcOfCircle(Part.Circle(Vector(196.596, -32.004, 0), Vector(0, 0, 1), 1.016), math.radians(0), math.radians(90)), False)
sketch8.addConstraint(Sketcher.Constraint("Tangent", 0, 1, 1, 2))
sketch8.addConstraint(Sketcher.Constraint("Tangent", 1, 1, 2, 2))
sketch8.addConstraint(Sketcher.Constraint("Tangent", 2, 1, 0, 2))
sketch8.addConstraint(Sketcher.Constraint("Tangent", 3, 1, 4, 2))
sketch8.addConstraint(Sketcher.Constraint("Tangent", 4, 1, 5, 2))
sketch8.addConstraint(Sketcher.Constraint("Tangent", 5, 1, 3, 2))
sketch8.addConstraint(Sketcher.Constraint("Tangent", 6, 1, 7, 2))
sketch8.addConstraint(Sketcher.Constraint("Coincident", 7, 1, 6, 2))
sketch8.addConstraint(Sketcher.Constraint("Tangent", 8, 1, 9, 2))
sketch8.addConstraint(Sketcher.Constraint("Coincident", 9, 1, 8, 2))
sketch8.addConstraint(Sketcher.Constraint("Equal", 2, 3))
sketch8.addConstraint(Sketcher.Constraint("Equal", 5, 6))
sketch8.addConstraint(Sketcher.Constraint("Equal", 7, 8))
sketch8.addConstraint(Sketcher.Constraint("Horizontal", 5, 3, 6, 3))
sketch8.addConstraint(Sketcher.Constraint("Horizontal", 2, 3, 8, 3))
sketch8.addConstraint(Sketcher.Constraint("Horizontal", 9, 3, 1, 1))
sketch8.addConstraint(Sketcher.Constraint("Horizontal", 1, 1, 2, 1))
sketch8.addConstraint(Sketcher.Constraint("Horizontal", 7, 3, 3, 1))
sketch8.addConstraint(Sketcher.Constraint("Horizontal", 3, 1, 4, 1))
sketch8.addConstraint(Sketcher.Constraint("Horizontal", 4, 1, 7, 1))
sketch8.addConstraint(Sketcher.Constraint("Horizontal", 2, 1, 9, 1))
sketch8.addConstraint(Sketcher.Constraint("Vertical", 2, 3, 3, 3))
sketch8.addConstraint(Sketcher.Constraint("Vertical", 7, 3, 8, 3))
sketch8.addConstraint(Sketcher.Constraint("Vertical", 5, 3, 0, 1))
sketch8.addConstraint(Sketcher.Constraint("Vertical", 0, 1, 5, 1))
sketch8.addConstraint(Sketcher.Constraint("Vertical", 9, 3, 6, 1))
sketch8.addConstraint(Sketcher.Constraint("Vertical", 6, 1, 8, 1))
sketch8.addConstraint(Sketcher.Constraint("Radius", 0, Q("0.04 in")))
sketch8.addConstraint(Sketcher.Constraint("DistanceY", 0, 3, 3, 3, Q("5 in")))
sketch8.addConstraint(Sketcher.Constraint("DistanceX", 6, 3, 3, 3, Q("4 in")))
sketch8.addConstraint(Sketcher.Constraint("DistanceX", -1, 1, 2, 1, Q("11.7 in")))
sketch8.addConstraint(Sketcher.Constraint("DistanceY", -1, 1, 5, 1, Q("3.7 in")))
pocket7 = body.newObject("PartDesign::Pocket", "Pocket006")
pocket7.Profile = sketch8
pocket7.Length = Q("0.1 in")
pocket7.Reversed = True

# Sketch on XZ plane
sketch9 = body.newObject("Sketcher::SketchObject", "Sketch008")
sketch9.AttachmentSupport = (doc.getObject("XZ_Plane"), [""])
sketch9.MapMode = "FlatFace"
sketch9.AttachmentOffset = App.Placement(Vector(0, 0, -0.118 * 25.4), App.Rotation())
sketch9.addGeometry(Part.Circle(Vector(-111.125, -48.879696, 0), Vector(0, 0, 1), 1.016), False)
sketch9.addGeometry(Part.Circle(Vector(104.775, -48.879696, 0), Vector(0, 0, 1), 1.016), False)
sketch9.addGeometry(Part.Circle(Vector(104.775, 65.017488, 0), Vector(0, 0, 1), 1.016), False)
sketch9.addGeometry(Part.Circle(Vector(-111.125, 65.017488, 0), Vector(0, 0, 1), 1.016), False)
sketch9.addGeometry(Part.Circle(Vector(-73.025, -12.7, 0), Vector(0, 0, 1), 1.016), False)
sketch9.addGeometry(Part.Circle(Vector(-187.325, -12.7, 0), Vector(0, 0, 1), 1.016), False)
sketch9.addGeometry(Part.Circle(Vector(142.875, -12.7, 0), Vector(0, 0, 1), 1.016), False)
sketch9.addGeometry(Part.Circle(Vector(240.018187, -77.871509, 0), Vector(0, 0, 1), 1.016), False)
sketch9.addGeometry(Part.Circle(Vector(41.275, -12.7, 0), Vector(0, 0, 1), 1.016), False)
sketch9.addGeometry(Part.Circle(Vector(142.875, 12.7, 0), Vector(0, 0, 1), 1.016), False)
sketch9.addGeometry(Part.Circle(Vector(41.275, 12.7, 0), Vector(0, 0, 1), 1.016), False)
sketch9.addGeometry(Part.Circle(Vector(-73.025, 12.7, 0), Vector(0, 0, 1), 1.016), False)
sketch9.addConstraint(Sketcher.Constraint("Equal", 0, 1))
sketch9.addConstraint(Sketcher.Constraint("Equal", 1, 2))
sketch9.addConstraint(Sketcher.Constraint("Equal", 2, 3))
sketch9.addConstraint(Sketcher.Constraint("Equal", 3, 4))
sketch9.addConstraint(Sketcher.Constraint("Equal", 4, 5))
sketch9.addConstraint(Sketcher.Constraint("Equal", 5, 6))
sketch9.addConstraint(Sketcher.Constraint("Equal", 6, 7))
sketch9.addConstraint(Sketcher.Constraint("Equal", 7, 8))
sketch9.addConstraint(Sketcher.Constraint("Equal", 8, 9))
sketch9.addConstraint(Sketcher.Constraint("Equal", 9, 10))
sketch9.addConstraint(Sketcher.Constraint("Equal", 10, 11))
sketch9.addConstraint(Sketcher.Constraint("Symmetric", 6, 3, 9, 3, -1))
sketch9.addConstraint(Sketcher.Constraint("Symmetric", 8, 3, 10, 3, -1))
sketch9.addConstraint(Sketcher.Constraint("Symmetric", 4, 3, 11, 3, -1))
sketch9.addConstraint(Sketcher.Constraint("Horizontal", 0, 3, 1, 3))
sketch9.addConstraint(Sketcher.Constraint("Horizontal", 2, 3, 3, 3))
sketch9.addConstraint(Sketcher.Constraint("Horizontal", 4, 3, 5, 3))
sketch9.addConstraint(Sketcher.Constraint("Horizontal", 5, 3, 6, 3))
sketch9.addConstraint(Sketcher.Constraint("Horizontal", 6, 3, 8, 3))
sketch9.addConstraint(Sketcher.Constraint("Vertical", 1, 3, 2, 3))
sketch9.addConstraint(Sketcher.Constraint("Vertical", 0, 3, 3, 3))
sketch9.addConstraint(Sketcher.Constraint("Diameter", 0, Q("0.08 in")))
sketch9.addConstraint(Sketcher.Constraint("DistanceX", 4, 3, 1, 3, Q("7 in")))
sketch9.addConstraint(Sketcher.Constraint("DistanceX", 5, 3, 0, 3, Q("3 in")))
sketch9.addConstraint(Sketcher.Constraint("DistanceX", 0, 3, 6, 3, Q("10 in")))
sketch9.addConstraint(Sketcher.Constraint("DistanceX", 8, 3, 6, 3, Q("4 in")))
sketch9.addConstraint(Sketcher.Constraint("DistanceY", 6, 3, 9, 3, Q("1 in")))
sketch9.addConstraint(Sketcher.Constraint("DistanceX", 0, 3, 1, 3, Q("8.5 in")))
sketch9.addConstraint(Sketcher.Constraint("DistanceX", 0, 3, -1, 1, Q("4.375 in")))
sketch9.addConstraint(Sketcher.Constraint("DistanceY", -1, 1, 2, 3, Q("65.017488 mm")))
sketch9.addConstraint(Sketcher.Constraint("DistanceY", 7, 3, -1, 1, Q("77.871509 mm")))
sketch9.addConstraint(Sketcher.Constraint("DistanceY", 0, 3, -1, 1, Q("48.879696 mm")))
sketch9.addConstraint(Sketcher.Constraint("DistanceX", -1, 1, 7, 3, Q("240.018187 mm")))
pocket8 = body.newObject("PartDesign::Pocket", "Pocket007")
pocket8.Profile = sketch9
pocket8.Length = Q("0.1 in")
pocket8.Reversed = True

doc.recompute()
